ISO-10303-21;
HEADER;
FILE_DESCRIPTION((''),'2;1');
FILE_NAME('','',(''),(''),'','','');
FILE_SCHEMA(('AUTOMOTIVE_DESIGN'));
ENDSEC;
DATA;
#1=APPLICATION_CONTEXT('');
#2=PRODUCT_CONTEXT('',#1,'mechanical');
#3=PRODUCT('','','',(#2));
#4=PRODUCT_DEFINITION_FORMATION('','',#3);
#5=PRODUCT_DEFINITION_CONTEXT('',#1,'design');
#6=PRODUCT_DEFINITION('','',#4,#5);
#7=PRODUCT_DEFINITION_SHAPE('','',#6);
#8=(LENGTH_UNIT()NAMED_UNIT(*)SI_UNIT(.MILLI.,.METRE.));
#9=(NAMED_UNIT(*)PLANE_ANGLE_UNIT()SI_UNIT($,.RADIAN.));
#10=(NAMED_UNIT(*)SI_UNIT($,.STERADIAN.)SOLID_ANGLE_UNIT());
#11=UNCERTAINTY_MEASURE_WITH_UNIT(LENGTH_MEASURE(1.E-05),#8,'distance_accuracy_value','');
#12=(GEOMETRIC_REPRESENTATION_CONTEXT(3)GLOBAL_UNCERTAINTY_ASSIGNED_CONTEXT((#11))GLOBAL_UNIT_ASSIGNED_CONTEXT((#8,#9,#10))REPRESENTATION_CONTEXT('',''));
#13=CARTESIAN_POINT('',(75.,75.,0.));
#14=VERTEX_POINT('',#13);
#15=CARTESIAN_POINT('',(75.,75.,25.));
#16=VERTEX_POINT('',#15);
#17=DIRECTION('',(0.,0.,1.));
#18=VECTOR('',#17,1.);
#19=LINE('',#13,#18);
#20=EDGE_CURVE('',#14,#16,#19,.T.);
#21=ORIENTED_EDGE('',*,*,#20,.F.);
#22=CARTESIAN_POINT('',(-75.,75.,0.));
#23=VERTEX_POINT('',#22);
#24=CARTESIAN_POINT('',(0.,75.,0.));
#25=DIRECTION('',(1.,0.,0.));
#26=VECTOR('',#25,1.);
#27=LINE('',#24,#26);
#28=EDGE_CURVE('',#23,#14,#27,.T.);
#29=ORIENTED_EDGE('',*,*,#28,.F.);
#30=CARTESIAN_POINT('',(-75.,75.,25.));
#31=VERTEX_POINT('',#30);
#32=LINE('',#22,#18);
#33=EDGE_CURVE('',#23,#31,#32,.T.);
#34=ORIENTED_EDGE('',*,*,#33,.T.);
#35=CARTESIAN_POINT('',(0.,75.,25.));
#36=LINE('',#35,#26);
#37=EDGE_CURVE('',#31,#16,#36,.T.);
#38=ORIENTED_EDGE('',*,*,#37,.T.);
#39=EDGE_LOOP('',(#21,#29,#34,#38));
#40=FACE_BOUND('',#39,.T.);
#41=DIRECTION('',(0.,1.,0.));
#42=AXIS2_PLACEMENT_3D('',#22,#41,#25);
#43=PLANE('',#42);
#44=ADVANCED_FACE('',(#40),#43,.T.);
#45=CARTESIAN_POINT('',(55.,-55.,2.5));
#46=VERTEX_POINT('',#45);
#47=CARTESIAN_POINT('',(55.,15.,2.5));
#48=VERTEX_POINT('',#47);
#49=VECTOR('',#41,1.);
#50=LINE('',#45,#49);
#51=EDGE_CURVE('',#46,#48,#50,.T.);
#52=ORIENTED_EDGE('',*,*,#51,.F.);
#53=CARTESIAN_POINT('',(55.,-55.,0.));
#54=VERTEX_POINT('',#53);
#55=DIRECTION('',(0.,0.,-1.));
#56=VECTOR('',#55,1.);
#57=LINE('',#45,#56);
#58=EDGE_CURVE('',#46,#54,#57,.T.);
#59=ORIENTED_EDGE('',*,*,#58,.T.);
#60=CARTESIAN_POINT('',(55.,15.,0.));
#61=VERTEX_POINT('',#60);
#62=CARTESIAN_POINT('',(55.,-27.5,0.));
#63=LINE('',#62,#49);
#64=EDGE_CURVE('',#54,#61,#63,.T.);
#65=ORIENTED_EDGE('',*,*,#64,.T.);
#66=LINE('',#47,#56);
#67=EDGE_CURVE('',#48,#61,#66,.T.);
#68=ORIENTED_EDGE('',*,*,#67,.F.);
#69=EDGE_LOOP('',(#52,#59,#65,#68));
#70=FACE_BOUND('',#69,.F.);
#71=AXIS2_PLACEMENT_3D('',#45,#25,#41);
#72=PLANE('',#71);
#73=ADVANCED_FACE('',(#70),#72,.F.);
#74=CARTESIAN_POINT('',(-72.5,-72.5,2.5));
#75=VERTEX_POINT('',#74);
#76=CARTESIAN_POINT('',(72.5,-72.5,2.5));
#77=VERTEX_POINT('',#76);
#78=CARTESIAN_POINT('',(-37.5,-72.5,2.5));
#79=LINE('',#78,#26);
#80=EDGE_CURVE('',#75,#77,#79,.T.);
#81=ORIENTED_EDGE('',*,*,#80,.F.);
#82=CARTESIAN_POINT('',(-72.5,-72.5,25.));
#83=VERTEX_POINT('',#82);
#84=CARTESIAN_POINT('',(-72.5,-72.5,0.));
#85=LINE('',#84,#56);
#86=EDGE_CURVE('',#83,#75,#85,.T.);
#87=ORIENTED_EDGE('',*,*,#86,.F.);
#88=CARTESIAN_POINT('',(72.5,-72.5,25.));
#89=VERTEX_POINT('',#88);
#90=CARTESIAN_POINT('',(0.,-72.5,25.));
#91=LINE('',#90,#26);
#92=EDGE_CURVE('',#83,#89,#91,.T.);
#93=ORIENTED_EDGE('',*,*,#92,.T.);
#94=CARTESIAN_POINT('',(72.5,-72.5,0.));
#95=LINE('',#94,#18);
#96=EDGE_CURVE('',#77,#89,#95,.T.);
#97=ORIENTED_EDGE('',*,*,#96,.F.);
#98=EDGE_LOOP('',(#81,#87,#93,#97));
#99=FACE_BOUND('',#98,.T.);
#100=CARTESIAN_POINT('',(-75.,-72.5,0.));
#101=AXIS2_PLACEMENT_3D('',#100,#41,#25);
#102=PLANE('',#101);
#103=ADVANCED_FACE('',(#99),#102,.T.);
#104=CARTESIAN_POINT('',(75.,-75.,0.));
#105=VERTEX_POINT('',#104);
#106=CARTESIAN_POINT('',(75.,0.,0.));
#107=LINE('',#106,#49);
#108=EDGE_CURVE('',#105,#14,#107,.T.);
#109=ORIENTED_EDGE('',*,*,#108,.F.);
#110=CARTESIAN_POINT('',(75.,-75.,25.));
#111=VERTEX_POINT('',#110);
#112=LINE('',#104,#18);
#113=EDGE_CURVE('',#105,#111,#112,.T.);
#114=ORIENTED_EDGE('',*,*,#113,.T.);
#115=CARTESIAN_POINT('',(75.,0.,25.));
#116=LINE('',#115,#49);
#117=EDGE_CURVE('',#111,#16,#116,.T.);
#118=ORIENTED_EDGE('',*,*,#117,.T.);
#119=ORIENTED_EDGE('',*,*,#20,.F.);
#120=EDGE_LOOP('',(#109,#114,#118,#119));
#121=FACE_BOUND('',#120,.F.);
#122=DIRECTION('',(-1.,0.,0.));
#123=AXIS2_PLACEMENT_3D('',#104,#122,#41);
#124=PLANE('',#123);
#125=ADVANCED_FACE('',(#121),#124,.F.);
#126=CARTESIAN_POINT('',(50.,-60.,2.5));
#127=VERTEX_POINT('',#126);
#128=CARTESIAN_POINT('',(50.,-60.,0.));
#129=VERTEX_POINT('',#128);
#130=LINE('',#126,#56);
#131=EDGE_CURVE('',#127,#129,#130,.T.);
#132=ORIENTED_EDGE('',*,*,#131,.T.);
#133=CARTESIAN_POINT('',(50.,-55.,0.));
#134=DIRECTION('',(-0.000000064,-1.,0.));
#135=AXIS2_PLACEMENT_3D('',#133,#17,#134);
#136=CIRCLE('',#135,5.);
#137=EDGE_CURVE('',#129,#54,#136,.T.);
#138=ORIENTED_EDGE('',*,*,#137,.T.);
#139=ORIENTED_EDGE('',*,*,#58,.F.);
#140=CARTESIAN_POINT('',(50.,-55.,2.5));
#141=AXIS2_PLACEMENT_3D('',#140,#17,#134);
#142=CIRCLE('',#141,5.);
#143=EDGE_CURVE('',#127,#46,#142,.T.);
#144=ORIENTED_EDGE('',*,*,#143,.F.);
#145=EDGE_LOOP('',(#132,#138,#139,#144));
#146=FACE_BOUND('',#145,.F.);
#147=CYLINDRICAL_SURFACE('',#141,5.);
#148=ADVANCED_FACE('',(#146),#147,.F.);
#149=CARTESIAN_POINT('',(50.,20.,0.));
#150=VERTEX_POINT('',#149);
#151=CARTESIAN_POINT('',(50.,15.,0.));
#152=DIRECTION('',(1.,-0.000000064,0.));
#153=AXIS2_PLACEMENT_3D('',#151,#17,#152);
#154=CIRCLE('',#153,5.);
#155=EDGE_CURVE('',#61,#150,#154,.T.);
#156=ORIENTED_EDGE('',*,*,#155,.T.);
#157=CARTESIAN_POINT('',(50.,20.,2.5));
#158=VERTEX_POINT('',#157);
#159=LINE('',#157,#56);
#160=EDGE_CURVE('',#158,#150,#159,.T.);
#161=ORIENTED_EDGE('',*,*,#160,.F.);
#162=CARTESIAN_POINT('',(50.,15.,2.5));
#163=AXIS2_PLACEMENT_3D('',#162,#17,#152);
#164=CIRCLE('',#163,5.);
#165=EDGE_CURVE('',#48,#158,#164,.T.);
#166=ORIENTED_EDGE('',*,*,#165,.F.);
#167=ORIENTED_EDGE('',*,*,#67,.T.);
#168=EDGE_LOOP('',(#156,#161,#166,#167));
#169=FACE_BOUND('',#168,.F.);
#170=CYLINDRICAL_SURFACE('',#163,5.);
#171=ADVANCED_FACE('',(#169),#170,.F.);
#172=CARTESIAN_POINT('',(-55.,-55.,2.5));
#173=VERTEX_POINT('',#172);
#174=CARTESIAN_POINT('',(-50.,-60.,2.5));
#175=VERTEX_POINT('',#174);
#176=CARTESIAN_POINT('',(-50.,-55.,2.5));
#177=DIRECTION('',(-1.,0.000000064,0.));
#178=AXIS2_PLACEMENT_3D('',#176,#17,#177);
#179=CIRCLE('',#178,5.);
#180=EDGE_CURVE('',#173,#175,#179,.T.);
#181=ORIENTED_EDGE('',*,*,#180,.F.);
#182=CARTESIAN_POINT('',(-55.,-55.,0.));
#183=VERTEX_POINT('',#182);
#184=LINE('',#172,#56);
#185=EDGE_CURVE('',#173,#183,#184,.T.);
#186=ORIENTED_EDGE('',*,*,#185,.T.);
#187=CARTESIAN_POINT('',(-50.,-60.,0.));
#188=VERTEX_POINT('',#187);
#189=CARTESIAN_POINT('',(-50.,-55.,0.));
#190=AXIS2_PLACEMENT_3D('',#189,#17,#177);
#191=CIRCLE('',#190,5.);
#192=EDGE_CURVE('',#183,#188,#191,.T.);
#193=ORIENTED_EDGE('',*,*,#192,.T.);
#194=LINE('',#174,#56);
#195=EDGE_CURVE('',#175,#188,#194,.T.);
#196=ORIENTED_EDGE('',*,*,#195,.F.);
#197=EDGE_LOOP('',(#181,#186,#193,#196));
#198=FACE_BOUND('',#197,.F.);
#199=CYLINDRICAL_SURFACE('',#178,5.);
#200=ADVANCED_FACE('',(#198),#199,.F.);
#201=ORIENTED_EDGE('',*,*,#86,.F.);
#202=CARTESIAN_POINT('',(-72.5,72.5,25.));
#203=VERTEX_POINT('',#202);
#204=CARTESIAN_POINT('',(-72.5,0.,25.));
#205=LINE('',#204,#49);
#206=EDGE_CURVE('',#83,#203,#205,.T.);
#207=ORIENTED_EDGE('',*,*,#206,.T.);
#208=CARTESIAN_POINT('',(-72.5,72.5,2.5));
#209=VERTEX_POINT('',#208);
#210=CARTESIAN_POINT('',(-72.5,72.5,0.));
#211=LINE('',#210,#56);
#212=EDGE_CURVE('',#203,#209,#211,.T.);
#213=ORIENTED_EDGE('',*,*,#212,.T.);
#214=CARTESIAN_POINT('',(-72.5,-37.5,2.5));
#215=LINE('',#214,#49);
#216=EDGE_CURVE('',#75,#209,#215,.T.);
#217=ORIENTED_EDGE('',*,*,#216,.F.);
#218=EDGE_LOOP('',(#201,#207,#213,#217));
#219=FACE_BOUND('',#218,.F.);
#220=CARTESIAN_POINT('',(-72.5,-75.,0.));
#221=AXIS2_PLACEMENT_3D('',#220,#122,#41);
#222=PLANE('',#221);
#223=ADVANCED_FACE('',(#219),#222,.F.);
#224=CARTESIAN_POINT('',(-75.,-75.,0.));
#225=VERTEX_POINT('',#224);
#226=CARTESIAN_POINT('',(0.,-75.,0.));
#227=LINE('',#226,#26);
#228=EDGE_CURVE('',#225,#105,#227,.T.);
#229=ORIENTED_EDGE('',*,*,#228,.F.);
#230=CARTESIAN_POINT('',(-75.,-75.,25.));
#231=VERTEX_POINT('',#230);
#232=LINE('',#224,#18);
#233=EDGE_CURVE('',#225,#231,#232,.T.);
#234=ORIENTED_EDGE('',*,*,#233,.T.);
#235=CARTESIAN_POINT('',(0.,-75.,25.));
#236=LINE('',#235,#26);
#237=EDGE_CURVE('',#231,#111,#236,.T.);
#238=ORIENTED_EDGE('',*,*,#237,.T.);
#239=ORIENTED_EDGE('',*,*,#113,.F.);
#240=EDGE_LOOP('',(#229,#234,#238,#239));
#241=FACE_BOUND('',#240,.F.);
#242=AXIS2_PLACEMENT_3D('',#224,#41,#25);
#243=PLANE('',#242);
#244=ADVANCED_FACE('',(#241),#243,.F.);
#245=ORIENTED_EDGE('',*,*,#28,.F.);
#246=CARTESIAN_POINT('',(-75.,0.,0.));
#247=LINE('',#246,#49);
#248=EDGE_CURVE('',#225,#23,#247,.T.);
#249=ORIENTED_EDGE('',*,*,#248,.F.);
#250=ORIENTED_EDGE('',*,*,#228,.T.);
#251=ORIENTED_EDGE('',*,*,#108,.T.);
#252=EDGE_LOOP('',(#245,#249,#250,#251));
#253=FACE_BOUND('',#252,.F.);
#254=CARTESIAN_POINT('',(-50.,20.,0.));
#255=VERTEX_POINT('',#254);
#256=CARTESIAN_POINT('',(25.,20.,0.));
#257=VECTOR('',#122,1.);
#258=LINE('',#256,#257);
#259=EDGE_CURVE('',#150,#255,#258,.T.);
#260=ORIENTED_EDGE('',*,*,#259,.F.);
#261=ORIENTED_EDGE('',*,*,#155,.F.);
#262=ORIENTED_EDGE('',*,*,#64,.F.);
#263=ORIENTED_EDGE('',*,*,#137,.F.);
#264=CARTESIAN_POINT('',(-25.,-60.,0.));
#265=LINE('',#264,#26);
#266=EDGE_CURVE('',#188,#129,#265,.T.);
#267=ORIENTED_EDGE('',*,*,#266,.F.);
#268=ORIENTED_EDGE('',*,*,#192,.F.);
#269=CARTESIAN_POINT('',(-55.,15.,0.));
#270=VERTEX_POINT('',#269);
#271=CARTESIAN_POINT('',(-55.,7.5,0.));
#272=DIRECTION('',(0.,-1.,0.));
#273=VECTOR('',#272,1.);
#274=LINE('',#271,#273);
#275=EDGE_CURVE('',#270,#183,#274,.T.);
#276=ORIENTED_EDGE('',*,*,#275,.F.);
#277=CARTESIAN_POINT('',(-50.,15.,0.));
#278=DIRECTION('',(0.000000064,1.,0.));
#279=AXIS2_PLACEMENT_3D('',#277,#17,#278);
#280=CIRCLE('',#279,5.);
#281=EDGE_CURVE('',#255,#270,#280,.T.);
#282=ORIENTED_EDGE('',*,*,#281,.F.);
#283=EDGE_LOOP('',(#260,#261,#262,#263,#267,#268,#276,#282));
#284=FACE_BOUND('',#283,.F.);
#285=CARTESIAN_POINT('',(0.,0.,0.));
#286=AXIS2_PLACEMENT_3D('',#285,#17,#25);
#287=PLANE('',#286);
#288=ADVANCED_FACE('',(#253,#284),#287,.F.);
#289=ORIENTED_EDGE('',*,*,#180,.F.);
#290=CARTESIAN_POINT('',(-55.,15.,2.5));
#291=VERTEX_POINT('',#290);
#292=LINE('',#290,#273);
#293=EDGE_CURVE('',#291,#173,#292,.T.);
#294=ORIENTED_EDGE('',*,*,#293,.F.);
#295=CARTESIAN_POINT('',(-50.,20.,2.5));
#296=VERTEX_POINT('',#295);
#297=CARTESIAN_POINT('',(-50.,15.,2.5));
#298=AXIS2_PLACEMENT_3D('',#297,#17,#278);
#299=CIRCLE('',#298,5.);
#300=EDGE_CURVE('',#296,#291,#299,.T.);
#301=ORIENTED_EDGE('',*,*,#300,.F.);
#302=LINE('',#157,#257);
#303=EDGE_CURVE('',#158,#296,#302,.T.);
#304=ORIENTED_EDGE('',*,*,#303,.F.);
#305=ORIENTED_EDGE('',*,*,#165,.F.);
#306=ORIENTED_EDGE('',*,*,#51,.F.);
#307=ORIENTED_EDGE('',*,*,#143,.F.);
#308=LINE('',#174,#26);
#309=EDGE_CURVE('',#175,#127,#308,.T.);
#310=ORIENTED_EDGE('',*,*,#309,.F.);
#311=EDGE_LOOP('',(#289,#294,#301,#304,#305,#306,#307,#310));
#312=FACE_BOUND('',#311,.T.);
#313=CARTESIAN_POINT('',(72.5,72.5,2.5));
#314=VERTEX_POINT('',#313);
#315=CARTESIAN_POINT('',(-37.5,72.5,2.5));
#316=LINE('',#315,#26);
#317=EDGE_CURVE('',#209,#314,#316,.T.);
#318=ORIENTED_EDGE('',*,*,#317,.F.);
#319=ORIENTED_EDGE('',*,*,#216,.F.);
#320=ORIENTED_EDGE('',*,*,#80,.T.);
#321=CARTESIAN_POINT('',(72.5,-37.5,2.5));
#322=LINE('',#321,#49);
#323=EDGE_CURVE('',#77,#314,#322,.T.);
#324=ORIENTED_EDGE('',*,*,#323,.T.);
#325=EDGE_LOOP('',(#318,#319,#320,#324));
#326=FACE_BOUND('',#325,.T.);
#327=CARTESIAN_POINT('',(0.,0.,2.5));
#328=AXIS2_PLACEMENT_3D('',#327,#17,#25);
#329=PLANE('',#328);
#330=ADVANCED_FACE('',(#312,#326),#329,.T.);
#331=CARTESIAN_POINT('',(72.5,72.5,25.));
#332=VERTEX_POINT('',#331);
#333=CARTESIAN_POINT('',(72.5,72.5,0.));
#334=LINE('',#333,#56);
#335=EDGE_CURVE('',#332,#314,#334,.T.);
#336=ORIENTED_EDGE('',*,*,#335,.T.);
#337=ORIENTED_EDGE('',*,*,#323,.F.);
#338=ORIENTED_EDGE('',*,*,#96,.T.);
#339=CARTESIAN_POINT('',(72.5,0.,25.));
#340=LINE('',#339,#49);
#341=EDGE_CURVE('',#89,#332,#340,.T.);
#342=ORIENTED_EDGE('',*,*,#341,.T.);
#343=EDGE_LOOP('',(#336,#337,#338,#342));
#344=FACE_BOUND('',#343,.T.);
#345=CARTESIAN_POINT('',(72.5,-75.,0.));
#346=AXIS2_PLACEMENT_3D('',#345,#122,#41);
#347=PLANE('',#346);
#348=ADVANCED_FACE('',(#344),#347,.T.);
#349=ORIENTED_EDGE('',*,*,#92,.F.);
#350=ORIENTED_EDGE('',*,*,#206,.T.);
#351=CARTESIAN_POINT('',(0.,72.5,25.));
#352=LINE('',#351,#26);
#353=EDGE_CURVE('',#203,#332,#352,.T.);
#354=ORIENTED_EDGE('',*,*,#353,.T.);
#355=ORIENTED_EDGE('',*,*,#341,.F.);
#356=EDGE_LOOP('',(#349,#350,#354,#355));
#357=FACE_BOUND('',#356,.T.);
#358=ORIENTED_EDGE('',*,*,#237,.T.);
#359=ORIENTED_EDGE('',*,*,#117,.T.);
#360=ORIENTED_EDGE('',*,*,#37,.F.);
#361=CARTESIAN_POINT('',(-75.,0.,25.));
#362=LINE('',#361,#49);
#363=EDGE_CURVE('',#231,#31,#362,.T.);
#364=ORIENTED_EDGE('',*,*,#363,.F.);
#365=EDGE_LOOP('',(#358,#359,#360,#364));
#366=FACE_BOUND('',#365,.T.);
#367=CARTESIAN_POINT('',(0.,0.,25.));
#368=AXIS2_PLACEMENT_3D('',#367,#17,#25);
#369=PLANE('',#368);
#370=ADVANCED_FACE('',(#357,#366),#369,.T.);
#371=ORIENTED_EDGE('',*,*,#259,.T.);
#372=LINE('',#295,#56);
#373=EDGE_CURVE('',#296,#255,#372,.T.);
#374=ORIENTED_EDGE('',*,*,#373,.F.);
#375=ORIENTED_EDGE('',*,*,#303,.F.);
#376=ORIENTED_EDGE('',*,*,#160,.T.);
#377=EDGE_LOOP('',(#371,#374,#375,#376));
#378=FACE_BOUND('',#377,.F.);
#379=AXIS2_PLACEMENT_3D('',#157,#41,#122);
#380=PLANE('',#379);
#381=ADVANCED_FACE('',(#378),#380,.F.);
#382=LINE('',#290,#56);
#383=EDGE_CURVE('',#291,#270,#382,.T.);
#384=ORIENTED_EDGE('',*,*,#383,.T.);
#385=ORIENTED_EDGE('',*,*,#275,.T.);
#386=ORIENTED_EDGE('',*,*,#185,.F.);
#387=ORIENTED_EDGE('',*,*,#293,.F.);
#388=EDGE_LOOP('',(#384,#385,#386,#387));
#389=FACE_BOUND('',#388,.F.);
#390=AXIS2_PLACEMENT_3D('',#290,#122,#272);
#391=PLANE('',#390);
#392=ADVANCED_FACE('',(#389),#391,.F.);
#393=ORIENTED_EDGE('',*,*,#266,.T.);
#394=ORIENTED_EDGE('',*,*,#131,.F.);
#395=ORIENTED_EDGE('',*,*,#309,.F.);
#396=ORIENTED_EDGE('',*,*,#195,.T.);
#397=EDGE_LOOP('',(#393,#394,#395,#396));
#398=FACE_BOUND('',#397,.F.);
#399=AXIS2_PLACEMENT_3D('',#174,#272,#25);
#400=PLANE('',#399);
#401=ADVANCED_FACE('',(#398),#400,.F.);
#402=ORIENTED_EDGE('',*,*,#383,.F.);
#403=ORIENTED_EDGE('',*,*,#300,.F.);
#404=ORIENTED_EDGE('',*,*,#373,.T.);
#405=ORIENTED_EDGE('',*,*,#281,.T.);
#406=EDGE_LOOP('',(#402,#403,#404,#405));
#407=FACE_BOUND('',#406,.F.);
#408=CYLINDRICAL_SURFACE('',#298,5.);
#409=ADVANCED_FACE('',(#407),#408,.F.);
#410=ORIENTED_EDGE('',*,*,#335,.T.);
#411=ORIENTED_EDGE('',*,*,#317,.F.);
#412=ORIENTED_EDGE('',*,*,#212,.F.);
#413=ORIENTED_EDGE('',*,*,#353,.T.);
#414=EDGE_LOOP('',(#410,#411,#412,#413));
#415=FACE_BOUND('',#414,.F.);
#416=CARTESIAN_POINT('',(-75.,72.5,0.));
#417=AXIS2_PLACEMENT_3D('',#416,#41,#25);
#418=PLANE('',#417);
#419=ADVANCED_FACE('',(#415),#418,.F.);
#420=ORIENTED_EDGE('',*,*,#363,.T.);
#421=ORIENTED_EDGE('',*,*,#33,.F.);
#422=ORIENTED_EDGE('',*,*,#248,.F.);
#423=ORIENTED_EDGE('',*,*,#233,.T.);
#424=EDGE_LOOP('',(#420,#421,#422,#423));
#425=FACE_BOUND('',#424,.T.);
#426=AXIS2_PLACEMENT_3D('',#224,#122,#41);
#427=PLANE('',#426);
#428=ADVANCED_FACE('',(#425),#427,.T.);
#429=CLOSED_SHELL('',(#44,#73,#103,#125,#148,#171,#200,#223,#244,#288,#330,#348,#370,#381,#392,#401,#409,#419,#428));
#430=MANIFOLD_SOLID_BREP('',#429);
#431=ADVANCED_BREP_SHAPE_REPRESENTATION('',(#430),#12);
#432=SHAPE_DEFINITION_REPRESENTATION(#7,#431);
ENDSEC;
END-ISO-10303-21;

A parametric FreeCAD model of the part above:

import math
import FreeCAD as App
import Part
import Sketcher
Q = App.Units.Quantity


def faces_at(feature, points):
    """Names of the faces that lie closest to the given points."""
    faces = feature.Shape.Faces
    near = lambda p: min(range(len(faces)), key=lambda i: faces[i].distToShape(Part.Vertex(*p))[0])
    return sorted({f"Face{near(p) + 1}" for p in points})


def add_polygon(sketch, points):
    """Adds a closed chain of lines whose ends are joined by coincident constraints."""
    first, n = sketch.GeometryCount, len(points)
    for a, b in zip(points, points[1:] + points[:1]):
        sketch.addGeometry(Part.LineSegment(App.Vector(*a, 0), App.Vector(*b, 0)), False)
    for i in range(n):
        sketch.addConstraint(Sketcher.Constraint("Coincident", first + i, 2, first + (i + 1) % n, 1))

doc = App.newDocument("Part")
body = doc.addObject("PartDesign::Body", "Body")

sketch1 = body.newObject("Sketcher::SketchObject", "Sketch")
sketch1.AttachmentSupport = (doc.getObject("XY_Plane"), [""])
sketch1.MapMode = "FlatFace"
add_polygon(sketch1, [(-75, 75), (-75, -75), (75, -75), (75, 75)])
sketch1.addConstraint([
    Sketcher.Constraint("Vertical", 0),
    Sketcher.Constraint("Horizontal", 1),
    Sketcher.Constraint("Vertical", 2),
    Sketcher.Constraint("Horizontal", 3),
    Sketcher.Constraint("Symmetric", 0, 2, 2, 2, -1, 1),
    Sketcher.Constraint("Equal", 3, 0),
    Sketcher.Constraint("DistanceX", 1, 1, 1, 2, Q("150 mm")),
])
pad1 = body.newObject("PartDesign::Pad", "Pad")
pad1.Profile = sketch1
pad1.Length = 25
doc.recompute()

thickness = body.newObject("PartDesign::Thickness", "Thickness")
thickness.Base = (pad1, faces_at(pad1, [(0, 0, 25)]))
thickness.Value = 2.5
thickness.Reversed = True
thickness.Join = "Arc"

sketch2 = body.newObject("Sketcher::SketchObject", "Sketch001")
sketch2.AttachmentSupport = (doc.getObject("XY_Plane"), [""])
sketch2.MapMode = "FlatFace"
sketch2.AttachmentOffset = App.Placement(App.Vector(0, 0, 2.5), App.Rotation())
sketch2.addGeometry([
    Part.LineSegment(App.Vector(50, 20, 0), App.Vector(-50, 20, 0)),
    Part.ArcOfCircle(Part.Circle(App.Vector(-50, 15, 0), App.Vector(0, 0, 1), 5), math.radians(90), math.radians(180)),
    Part.LineSegment(App.Vector(-55, 15, 0), App.Vector(-55, -55, 0)),
    Part.ArcOfCircle(Part.Circle(App.Vector(-50, -55, 0), App.Vector(0, 0, 1), 5), math.radians(180), math.radians(270)),
    Part.LineSegment(App.Vector(-50, -60, 0), App.Vector(50, -60, 0)),
    Part.ArcOfCircle(Part.Circle(App.Vector(50, -55, 0), App.Vector(0, 0, 1), 5), math.radians(-90), math.radians(0)),
    Part.LineSegment(App.Vector(55, -55, 0), App.Vector(55, 15, 0)),
    Part.ArcOfCircle(Part.Circle(App.Vector(50, 15, 0), App.Vector(0, 0, 1), 5), math.radians(0), math.radians(90)),
], False)
sketch2.addConstraint([
    Sketcher.Constraint("Tangent", 0, 2, 1, 1),
    Sketcher.Constraint("Tangent", 1, 2, 2, 1),
    Sketcher.Constraint("Tangent", 2, 2, 3, 1),
    Sketcher.Constraint("Tangent", 3, 2, 4, 1),
    Sketcher.Constraint("Tangent", 4, 2, 5, 1),
    Sketcher.Constraint("Tangent", 5, 2, 6, 1),
    Sketcher.Constraint("Tangent", 6, 2, 7, 1),
    Sketcher.Constraint("Tangent", 7, 2, 0, 1),
    Sketcher.Constraint("Horizontal", 0),
    Sketcher.Constraint("Vertical", 2),
    Sketcher.Constraint("Horizontal", 4),
    Sketcher.Constraint("Vertical", 6),
    Sketcher.Constraint("Equal", 1, 3),
    Sketcher.Constraint("Equal", 3, 5),
    Sketcher.Constraint("Equal", 5, 7),
    Sketcher.Constraint("Radius", 1, Q("5 mm")),
    Sketcher.Constraint("DistanceX", 0, 2, 0, 1, Q("100 mm")),
    Sketcher.Constraint("DistanceY", 2, 2, 2, 1, Q("70 mm")),
    Sketcher.Constraint("DistanceX", 1, 3, -1, 1, Q("50 mm")),
    Sketcher.Constraint("DistanceY", -1, 1, 1, 3, Q("15 mm")),
])
pocket1 = body.newObject("PartDesign::Pocket", "Pocket")
pocket1.Profile = sketch2
pocket1.Length = 25

doc.recompute()
